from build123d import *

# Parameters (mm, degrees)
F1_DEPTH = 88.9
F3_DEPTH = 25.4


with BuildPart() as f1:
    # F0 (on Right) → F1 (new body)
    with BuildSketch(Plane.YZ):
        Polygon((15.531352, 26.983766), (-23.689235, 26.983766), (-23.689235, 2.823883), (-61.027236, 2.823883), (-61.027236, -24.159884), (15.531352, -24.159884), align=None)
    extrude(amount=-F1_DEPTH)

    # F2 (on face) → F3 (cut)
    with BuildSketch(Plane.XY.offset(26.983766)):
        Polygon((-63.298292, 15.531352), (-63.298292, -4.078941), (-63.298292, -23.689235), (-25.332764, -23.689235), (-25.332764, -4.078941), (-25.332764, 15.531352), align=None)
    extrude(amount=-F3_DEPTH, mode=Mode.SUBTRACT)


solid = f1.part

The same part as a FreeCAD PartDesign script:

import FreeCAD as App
import Part
import Sketcher
Q = App.Units.Quantity


def add_polygon(sketch, points):
    """Adds a closed chain of lines whose ends are joined by coincident constraints."""
    first, n = sketch.GeometryCount, len(points)
    for a, b in zip(points, points[1:] + points[:1]):
        sketch.addGeometry(Part.LineSegment(App.Vector(*a, 0), App.Vector(*b, 0)), False)
    for i in range(n):
        sketch.addConstraint(Sketcher.Constraint("Coincident", first + i, 2, first + (i + 1) % n, 1))

doc = App.newDocument("Part")
body = doc.addObject("PartDesign::Body", "Body")

# Sketch on YZ plane
sketch1 = body.newObject("Sketcher::SketchObject", "Sketch")
sketch1.AttachmentSupport = (doc.getObject("YZ_Plane"), [""])
sketch1.MapMode = "FlatFace"
add_polygon(sketch1, [(15.531352, 26.983766), (-23.689235, 26.983766), (-23.689235, 2.823883), (-61.027236, 2.823883), (-61.027236, -24.159884), (15.531352, -24.159884)])  # lines 0-5
sketch1.addConstraint(Sketcher.Constraint("Horizontal", 0))
sketch1.addConstraint(Sketcher.Constraint("Vertical", 1))
sketch1.addConstraint(Sketcher.Constraint("Horizontal", 2))
sketch1.addConstraint(Sketcher.Constraint("Vertical", 3))
sketch1.addConstraint(Sketcher.Constraint("Horizontal", 4))
sketch1.addConstraint(Sketcher.Constraint("Vertical", 5))
sketch1.addConstraint(Sketcher.Constraint("DistanceX", 2, 2, 2, 1, Q("1.47 in")))
sketch1.addConstraint(Sketcher.Constraint("DistanceX", 4, 1, 4, 2, 76.558588))
sketch1.addConstraint(Sketcher.Constraint("DistanceY", 5, 1, 5, 2, 51.14365))
sketch1.addConstraint(Sketcher.Constraint("DistanceY", 1, 2, 1, 1, 24.159883))
sketch1.addConstraint(Sketcher.Constraint("DistanceX", 0, 2, -1, 1, 23.689235))
sketch1.addConstraint(Sketcher.Constraint("DistanceY", -1, 1, 0, 2, 26.983766))
pad1 = body.newObject("PartDesign::Pad", "Pad")
pad1.Profile = sketch1
pad1.Length = Q("3.5 in")
pad1.Reversed = True

# Sketch on XY plane
sketch2 = body.newObject("Sketcher::SketchObject", "Sketch001")
sketch2.AttachmentSupport = (doc.getObject("XY_Plane"), [""])
sketch2.MapMode = "FlatFace"
sketch2.AttachmentOffset = App.Placement(App.Vector(0, 0, 26.983766), App.Rotation())
add_polygon(sketch2, [(-63.298292, 15.531352), (-63.298292, -23.689235), (-25.332764, -23.689235), (-25.332764, 15.531352)])  # lines 0-3
sketch2.addConstraint(Sketcher.Constraint("Vertical", 0))
sketch2.addConstraint(Sketcher.Constraint("Horizontal", 1))
sketch2.addConstraint(Sketcher.Constraint("Vertical", 2))
sketch2.addConstraint(Sketcher.Constraint("Horizontal", 3))
sketch2.addConstraint(Sketcher.Constraint("DistanceX", 1, 1, 1, 2, 37.965528))
sketch2.addConstraint(Sketcher.Constraint("DistanceY", 0, 2, 0, 1, 39.220587))
sketch2.addConstraint(Sketcher.Constraint("DistanceX", 0, 2, -1, 1, 63.298292))
sketch2.addConstraint(Sketcher.Constraint("DistanceY", 0, 2, -1, 1, 23.689235))
pocket1 = body.newObject("PartDesign::Pocket", "Pocket")
pocket1.Profile = sketch2
pocket1.Length = Q("1 in")

doc.recompute()
